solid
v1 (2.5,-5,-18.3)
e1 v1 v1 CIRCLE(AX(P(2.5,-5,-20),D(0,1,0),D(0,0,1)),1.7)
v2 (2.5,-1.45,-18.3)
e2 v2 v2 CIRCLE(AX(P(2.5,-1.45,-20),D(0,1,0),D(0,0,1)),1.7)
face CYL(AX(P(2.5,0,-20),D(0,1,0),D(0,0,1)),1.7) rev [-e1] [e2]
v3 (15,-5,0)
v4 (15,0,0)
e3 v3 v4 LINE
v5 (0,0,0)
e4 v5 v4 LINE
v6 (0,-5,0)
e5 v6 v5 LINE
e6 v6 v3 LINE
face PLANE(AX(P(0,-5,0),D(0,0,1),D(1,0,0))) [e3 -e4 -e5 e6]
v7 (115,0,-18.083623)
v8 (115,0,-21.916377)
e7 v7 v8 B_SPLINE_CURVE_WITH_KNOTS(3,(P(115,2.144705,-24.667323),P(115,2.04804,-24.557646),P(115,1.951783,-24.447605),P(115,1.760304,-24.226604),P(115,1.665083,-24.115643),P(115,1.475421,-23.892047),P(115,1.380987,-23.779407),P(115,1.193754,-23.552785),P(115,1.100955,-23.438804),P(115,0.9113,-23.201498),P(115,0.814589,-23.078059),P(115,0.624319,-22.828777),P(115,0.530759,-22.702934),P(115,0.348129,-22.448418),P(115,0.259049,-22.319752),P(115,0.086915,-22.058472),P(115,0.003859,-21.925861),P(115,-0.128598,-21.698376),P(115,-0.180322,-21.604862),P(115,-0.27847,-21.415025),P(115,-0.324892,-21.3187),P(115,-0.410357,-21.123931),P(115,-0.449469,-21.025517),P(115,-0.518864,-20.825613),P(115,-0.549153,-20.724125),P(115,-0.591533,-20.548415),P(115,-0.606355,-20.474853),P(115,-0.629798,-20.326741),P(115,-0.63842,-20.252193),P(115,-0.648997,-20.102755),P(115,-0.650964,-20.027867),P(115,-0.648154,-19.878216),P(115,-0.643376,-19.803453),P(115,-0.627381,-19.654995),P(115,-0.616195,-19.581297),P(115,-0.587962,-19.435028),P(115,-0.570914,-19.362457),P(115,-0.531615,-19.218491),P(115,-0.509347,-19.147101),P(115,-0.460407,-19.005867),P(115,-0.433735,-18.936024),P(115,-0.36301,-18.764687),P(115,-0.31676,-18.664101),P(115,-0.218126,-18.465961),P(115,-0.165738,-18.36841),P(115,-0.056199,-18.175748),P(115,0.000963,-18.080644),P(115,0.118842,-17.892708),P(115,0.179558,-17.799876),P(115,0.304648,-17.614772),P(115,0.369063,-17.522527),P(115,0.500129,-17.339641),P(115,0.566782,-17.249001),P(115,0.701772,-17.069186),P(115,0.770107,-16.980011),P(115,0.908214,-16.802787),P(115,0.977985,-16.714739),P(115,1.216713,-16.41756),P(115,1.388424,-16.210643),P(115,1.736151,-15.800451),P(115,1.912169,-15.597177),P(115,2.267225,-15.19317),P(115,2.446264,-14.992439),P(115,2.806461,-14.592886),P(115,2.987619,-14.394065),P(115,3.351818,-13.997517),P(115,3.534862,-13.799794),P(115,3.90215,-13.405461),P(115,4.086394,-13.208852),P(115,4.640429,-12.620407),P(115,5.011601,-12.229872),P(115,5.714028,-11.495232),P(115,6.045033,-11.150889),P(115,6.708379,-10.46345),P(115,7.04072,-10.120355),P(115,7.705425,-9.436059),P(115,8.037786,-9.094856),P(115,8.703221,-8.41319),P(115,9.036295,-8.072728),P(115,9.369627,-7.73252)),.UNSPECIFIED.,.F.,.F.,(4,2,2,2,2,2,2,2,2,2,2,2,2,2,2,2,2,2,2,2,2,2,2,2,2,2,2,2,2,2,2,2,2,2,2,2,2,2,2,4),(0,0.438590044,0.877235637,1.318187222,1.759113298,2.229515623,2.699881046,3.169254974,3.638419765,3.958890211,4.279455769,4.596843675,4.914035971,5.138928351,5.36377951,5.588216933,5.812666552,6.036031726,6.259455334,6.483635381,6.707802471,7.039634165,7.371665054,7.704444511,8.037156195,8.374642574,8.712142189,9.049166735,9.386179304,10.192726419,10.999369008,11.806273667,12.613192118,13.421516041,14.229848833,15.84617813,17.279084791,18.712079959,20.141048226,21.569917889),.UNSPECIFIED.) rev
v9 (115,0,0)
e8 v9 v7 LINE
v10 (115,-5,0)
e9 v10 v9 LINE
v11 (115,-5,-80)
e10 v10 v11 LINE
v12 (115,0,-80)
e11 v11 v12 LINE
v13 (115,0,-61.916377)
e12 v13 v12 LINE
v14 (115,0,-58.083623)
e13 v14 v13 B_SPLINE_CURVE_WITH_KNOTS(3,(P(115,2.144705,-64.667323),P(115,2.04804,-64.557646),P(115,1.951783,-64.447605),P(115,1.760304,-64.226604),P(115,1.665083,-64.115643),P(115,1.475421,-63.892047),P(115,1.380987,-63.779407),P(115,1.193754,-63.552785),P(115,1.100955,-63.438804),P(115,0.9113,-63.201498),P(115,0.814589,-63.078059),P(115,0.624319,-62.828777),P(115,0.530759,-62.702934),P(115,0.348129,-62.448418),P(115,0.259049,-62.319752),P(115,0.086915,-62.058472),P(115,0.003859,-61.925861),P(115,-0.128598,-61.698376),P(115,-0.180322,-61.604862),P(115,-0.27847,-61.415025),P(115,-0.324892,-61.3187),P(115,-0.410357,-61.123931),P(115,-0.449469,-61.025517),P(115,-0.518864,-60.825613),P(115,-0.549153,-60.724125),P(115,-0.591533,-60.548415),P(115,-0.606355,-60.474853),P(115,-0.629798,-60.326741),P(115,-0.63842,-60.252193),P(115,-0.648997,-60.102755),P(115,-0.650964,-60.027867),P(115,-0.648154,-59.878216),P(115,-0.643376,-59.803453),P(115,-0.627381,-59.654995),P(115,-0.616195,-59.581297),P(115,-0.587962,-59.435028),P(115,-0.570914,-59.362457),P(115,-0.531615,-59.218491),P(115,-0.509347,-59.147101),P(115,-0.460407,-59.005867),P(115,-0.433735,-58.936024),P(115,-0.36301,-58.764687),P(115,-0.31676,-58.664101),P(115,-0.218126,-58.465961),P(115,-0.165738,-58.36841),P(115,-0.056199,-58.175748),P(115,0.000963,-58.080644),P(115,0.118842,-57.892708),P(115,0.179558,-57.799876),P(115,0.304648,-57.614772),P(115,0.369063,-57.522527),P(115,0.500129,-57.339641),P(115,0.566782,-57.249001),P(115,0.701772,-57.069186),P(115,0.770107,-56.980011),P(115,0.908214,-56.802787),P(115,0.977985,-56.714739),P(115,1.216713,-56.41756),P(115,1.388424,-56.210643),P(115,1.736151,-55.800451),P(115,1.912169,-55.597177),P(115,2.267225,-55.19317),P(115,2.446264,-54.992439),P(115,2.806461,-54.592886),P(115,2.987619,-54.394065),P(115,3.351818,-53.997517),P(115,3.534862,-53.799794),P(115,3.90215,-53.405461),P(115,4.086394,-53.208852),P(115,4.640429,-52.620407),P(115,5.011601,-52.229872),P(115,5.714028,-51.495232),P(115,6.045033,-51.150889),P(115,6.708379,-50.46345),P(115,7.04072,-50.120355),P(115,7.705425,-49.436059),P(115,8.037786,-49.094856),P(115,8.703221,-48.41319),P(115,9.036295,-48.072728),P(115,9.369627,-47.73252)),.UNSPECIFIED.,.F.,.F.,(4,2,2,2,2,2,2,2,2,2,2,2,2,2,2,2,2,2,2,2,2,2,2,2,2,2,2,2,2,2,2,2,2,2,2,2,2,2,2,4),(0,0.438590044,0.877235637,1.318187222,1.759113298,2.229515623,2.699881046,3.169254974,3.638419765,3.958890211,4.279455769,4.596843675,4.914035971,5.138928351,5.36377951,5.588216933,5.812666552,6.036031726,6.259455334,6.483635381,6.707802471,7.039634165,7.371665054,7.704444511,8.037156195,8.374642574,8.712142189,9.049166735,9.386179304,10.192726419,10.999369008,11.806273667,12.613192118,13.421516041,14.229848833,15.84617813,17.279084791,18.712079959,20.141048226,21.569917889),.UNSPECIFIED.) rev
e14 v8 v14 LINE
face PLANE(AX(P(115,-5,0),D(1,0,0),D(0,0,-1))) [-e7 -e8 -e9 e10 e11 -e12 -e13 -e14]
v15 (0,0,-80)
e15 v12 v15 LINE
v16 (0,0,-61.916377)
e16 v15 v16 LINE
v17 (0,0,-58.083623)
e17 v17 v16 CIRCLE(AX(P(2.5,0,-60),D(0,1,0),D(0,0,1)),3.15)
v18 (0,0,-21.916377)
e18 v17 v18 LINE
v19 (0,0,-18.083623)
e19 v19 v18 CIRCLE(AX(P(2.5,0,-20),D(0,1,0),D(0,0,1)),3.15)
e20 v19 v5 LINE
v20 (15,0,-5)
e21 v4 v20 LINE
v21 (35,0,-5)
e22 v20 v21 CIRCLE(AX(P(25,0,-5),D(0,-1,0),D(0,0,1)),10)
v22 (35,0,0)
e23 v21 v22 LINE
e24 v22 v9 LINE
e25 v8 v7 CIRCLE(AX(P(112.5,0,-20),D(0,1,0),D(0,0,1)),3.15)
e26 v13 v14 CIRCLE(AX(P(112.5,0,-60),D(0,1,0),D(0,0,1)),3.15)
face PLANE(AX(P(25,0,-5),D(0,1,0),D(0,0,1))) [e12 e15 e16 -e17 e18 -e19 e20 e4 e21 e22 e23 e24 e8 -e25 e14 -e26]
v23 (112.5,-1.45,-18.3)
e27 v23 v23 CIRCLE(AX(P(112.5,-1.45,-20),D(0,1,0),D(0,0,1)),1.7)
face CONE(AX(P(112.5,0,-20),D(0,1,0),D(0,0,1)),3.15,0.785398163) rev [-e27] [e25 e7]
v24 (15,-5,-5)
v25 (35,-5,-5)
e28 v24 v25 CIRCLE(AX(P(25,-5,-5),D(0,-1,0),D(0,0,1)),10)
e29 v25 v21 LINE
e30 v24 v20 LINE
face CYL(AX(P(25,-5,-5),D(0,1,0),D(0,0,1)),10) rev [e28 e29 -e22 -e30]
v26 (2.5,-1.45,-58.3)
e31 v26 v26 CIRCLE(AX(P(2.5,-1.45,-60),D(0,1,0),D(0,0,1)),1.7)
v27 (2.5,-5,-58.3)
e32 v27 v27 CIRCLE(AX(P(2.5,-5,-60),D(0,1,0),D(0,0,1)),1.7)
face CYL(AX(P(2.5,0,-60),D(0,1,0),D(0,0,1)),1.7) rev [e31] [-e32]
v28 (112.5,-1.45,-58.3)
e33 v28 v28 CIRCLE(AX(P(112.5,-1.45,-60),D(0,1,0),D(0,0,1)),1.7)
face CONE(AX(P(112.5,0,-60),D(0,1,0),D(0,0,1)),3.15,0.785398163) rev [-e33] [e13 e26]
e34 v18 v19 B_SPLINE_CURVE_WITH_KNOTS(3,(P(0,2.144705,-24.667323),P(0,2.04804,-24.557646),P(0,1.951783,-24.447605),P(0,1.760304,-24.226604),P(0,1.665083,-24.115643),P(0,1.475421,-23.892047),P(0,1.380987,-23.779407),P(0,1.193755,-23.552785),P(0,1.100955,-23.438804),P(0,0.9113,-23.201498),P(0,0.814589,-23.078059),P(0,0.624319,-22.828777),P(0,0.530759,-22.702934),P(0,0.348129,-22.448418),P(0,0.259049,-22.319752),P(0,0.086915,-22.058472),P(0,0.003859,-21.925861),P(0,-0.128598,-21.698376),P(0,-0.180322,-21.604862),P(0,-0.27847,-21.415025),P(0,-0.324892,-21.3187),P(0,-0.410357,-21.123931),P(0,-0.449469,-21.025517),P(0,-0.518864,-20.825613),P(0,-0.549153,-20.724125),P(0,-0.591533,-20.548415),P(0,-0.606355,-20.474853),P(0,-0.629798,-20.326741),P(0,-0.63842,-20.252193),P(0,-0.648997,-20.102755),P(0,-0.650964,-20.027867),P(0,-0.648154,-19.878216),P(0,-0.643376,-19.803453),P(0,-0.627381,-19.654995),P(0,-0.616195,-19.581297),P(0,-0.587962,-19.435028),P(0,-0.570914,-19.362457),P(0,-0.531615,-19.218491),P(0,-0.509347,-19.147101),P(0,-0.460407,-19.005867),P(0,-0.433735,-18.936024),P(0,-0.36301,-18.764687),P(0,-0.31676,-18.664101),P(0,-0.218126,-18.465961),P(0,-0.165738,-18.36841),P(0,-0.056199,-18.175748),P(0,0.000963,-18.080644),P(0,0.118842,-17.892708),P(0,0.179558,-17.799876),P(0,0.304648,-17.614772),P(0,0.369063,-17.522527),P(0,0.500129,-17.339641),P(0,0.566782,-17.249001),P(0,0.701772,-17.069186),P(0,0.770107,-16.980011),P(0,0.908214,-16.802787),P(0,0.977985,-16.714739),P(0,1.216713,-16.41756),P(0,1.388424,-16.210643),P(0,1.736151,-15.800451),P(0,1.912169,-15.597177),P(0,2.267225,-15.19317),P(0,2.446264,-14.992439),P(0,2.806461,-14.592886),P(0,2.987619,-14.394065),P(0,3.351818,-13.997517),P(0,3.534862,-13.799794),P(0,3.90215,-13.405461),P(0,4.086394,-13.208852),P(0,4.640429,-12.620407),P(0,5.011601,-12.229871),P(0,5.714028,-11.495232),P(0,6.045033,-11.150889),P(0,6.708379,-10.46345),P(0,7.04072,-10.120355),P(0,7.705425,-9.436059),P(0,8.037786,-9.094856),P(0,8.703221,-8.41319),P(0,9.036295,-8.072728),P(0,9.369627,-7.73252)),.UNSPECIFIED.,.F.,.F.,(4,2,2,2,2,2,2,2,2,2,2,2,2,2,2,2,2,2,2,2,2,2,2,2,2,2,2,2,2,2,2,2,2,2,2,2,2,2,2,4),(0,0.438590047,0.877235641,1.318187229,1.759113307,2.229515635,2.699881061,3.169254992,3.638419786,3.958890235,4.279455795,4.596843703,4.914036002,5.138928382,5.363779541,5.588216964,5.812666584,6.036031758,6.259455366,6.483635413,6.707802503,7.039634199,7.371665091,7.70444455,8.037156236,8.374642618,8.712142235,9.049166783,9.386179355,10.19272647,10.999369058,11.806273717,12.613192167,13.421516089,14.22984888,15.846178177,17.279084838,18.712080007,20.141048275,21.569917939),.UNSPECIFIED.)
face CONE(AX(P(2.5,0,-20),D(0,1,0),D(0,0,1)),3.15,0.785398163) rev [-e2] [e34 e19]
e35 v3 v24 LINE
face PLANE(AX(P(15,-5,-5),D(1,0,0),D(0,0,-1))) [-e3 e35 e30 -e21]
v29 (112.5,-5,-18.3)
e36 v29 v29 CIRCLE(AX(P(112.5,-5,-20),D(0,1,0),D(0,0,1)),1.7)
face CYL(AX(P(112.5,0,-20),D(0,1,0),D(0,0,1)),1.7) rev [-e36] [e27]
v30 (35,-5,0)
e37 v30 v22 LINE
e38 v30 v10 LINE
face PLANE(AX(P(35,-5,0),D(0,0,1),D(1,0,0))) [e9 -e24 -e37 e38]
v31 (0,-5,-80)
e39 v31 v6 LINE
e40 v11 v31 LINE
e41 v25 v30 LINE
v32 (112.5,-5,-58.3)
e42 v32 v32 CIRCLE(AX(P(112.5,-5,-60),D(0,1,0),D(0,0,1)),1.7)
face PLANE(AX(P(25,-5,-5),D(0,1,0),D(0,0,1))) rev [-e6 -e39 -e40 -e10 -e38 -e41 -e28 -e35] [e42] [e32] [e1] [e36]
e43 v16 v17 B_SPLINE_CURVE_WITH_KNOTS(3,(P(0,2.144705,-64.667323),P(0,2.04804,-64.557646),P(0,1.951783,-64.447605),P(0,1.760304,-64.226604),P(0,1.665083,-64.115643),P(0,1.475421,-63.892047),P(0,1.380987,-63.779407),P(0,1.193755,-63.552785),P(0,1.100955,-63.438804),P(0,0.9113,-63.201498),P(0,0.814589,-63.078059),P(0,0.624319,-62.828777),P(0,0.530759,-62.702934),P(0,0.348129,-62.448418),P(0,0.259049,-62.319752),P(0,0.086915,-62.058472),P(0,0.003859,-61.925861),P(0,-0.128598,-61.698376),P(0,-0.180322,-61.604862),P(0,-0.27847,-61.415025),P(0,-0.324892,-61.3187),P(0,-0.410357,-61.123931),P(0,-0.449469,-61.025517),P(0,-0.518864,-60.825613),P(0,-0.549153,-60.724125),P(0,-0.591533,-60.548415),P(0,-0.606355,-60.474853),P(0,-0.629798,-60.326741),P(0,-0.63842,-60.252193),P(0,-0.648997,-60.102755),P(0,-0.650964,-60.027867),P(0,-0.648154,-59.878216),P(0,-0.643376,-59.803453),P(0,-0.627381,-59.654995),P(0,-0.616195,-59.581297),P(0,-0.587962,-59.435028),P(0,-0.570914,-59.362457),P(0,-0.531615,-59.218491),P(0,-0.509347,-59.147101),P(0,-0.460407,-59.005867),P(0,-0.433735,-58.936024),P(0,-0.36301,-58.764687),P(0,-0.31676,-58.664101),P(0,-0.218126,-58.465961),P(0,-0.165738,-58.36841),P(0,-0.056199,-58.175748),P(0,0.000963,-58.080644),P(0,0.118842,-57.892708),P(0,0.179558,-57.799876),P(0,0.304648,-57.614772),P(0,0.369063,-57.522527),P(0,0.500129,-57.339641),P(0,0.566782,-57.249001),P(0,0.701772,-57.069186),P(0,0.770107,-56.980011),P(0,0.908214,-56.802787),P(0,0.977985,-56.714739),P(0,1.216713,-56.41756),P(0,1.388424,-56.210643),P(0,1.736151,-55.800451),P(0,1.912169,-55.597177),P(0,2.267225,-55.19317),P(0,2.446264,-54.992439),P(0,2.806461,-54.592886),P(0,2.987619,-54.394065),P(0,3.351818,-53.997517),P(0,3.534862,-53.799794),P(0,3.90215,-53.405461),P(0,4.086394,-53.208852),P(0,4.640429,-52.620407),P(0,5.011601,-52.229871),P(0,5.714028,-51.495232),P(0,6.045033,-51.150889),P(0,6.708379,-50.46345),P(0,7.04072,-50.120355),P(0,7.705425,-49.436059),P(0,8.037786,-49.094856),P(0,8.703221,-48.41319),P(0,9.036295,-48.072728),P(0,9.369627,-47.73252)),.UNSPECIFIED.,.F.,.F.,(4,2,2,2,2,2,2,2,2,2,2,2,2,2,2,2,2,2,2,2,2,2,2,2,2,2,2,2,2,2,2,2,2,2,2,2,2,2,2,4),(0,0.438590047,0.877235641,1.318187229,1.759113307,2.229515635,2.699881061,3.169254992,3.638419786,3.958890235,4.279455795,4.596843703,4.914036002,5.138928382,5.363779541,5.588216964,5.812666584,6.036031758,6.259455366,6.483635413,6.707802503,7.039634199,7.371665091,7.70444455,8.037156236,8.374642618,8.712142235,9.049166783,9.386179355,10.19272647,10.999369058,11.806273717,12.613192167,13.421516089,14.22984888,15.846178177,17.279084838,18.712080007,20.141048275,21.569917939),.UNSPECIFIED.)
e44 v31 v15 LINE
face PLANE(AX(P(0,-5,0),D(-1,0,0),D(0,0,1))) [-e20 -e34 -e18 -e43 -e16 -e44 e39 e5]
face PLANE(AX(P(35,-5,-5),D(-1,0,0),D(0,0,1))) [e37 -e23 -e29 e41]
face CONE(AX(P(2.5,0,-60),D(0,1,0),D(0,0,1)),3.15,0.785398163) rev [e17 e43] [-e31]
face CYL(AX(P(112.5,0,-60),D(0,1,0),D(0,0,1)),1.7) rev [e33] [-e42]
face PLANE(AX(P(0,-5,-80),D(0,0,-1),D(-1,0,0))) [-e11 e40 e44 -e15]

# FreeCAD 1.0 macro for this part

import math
import FreeCAD as App
import Part
import Sketcher
Q = App.Units.Quantity

doc = App.newDocument("Part")
body = doc.addObject("PartDesign::Body", "Body")

sketch1 = body.newObject("Sketcher::SketchObject", "Sketch")
sketch1.AttachmentSupport = (doc.getObject("XZ_Plane"), [""])
sketch1.MapMode = "FlatFace"
sketch1.addGeometry([
    Part.LineSegment(App.Vector(15, 0, 0), App.Vector(15, -5, 0)),
    Part.ArcOfCircle(Part.Circle(App.Vector(25, -5, 0), App.Vector(0, 0, 1), 10), math.radians(180), math.radians(360)),
    Part.LineSegment(App.Vector(35, -5, 0), App.Vector(35, 0, 0)),
    Part.LineSegment(App.Vector(35, 0, 0), App.Vector(115, 0, 0)),
    Part.LineSegment(App.Vector(115, 0, 0), App.Vector(115, -80, 0)),
    Part.LineSegment(App.Vector(115, -80, 0), App.Vector(0, -80, 0)),
    Part.LineSegment(App.Vector(0, -80, 0), App.Vector(0, 0, 0)),
    Part.LineSegment(App.Vector(0, 0, 0), App.Vector(15, 0, 0)),
], False)
sketch1.addConstraint([
    Sketcher.Constraint("Tangent", 0, 2, 1, 1),
    Sketcher.Constraint("Tangent", 1, 2, 2, 1),
    Sketcher.Constraint("Coincident", 2, 2, 3, 1),
    Sketcher.Constraint("Coincident", 3, 2, 4, 1),
    Sketcher.Constraint("Coincident", 4, 2, 5, 1),
    Sketcher.Constraint("Coincident", 5, 2, 6, 1),
    Sketcher.Constraint("Coincident", 6, 2, 7, 1),
    Sketcher.Constraint("Coincident", 7, 2, 0, 1),
    Sketcher.Constraint("Vertical", 0),
    Sketcher.Constraint("Vertical", 2),
    Sketcher.Constraint("Horizontal", 3),
    Sketcher.Constraint("Vertical", 4),
    Sketcher.Constraint("Horizontal", 5),
    Sketcher.Constraint("Vertical", 6),
    Sketcher.Constraint("Horizontal", 7),
    Sketcher.Constraint("Coincident", 6, 2, -1, 1),
    Sketcher.Constraint("PointOnObject", 2, 2, -1),
    Sketcher.Constraint("Equal", 3, 4),
    Sketcher.Constraint("Radius", 1, Q("10 mm")),
    Sketcher.Constraint("DistanceX", 3, 1, 3, 2, Q("80 mm")),
    Sketcher.Constraint("DistanceX", 5, 2, 5, 1, Q("115 mm")),
    Sketcher.Constraint("DistanceY", 0, 2, 0, 1, Q("5 mm")),
])
pad1 = body.newObject("PartDesign::Pad", "Pad")
pad1.Profile = sketch1
pad1.Length = 5

sketch2 = body.newObject("Sketcher::SketchObject", "Sketch001")
sketch2.AttachmentSupport = (doc.getObject("XZ_Plane"), [""])
sketch2.MapMode = "FlatFace"
sketch2.addGeometry([
    Part.Circle(App.Vector(2.5, -60, 0), App.Vector(0, 0, 1), 1.7),
    Part.Circle(App.Vector(2.5, -20, 0), App.Vector(0, 0, 1), 1.7),
    Part.Circle(App.Vector(112.5, -60, 0), App.Vector(0, 0, 1), 1.7),
    Part.Circle(App.Vector(112.5, -20, 0), App.Vector(0, 0, 1), 1.7),
], False)
sketch2.addConstraint([
    Sketcher.Constraint("Equal", 0, 1),
    Sketcher.Constraint("Equal", 1, 2),
    Sketcher.Constraint("Equal", 2, 3),
    Sketcher.Constraint("Horizontal", 0, 3, 2, 3),
    Sketcher.Constraint("Horizontal", 1, 3, 3, 3),
    Sketcher.Constraint("Vertical", 0, 3, 1, 3),
    Sketcher.Constraint("Vertical", 2, 3, 3, 3),
    Sketcher.Constraint("Diameter", 0, Q("3.4 mm")),
    Sketcher.Constraint("DistanceY", 0, 3, -1, 1, Q("60 mm")),
    Sketcher.Constraint("DistanceY", 1, 3, -1, 1, Q("20 mm")),
    Sketcher.Constraint("DistanceX", 0, 3, 2, 3, Q("110 mm")),
    Sketcher.Constraint("DistanceX", -1, 1, 0, 3, Q("2.5 mm")),
])
doc.recompute()
hole = body.newObject("PartDesign::Hole", "Hole")
hole.Profile = sketch2
hole.ThreadType = "None"
hole.Diameter = 3.4
hole.DepthType = "ThroughAll"
hole.HoleCutType = "Countersink"
hole.HoleCutDiameter = 6.3
hole.HoleCutCountersinkAngle = 90
hole.Reversed = True

doc.recompute()
